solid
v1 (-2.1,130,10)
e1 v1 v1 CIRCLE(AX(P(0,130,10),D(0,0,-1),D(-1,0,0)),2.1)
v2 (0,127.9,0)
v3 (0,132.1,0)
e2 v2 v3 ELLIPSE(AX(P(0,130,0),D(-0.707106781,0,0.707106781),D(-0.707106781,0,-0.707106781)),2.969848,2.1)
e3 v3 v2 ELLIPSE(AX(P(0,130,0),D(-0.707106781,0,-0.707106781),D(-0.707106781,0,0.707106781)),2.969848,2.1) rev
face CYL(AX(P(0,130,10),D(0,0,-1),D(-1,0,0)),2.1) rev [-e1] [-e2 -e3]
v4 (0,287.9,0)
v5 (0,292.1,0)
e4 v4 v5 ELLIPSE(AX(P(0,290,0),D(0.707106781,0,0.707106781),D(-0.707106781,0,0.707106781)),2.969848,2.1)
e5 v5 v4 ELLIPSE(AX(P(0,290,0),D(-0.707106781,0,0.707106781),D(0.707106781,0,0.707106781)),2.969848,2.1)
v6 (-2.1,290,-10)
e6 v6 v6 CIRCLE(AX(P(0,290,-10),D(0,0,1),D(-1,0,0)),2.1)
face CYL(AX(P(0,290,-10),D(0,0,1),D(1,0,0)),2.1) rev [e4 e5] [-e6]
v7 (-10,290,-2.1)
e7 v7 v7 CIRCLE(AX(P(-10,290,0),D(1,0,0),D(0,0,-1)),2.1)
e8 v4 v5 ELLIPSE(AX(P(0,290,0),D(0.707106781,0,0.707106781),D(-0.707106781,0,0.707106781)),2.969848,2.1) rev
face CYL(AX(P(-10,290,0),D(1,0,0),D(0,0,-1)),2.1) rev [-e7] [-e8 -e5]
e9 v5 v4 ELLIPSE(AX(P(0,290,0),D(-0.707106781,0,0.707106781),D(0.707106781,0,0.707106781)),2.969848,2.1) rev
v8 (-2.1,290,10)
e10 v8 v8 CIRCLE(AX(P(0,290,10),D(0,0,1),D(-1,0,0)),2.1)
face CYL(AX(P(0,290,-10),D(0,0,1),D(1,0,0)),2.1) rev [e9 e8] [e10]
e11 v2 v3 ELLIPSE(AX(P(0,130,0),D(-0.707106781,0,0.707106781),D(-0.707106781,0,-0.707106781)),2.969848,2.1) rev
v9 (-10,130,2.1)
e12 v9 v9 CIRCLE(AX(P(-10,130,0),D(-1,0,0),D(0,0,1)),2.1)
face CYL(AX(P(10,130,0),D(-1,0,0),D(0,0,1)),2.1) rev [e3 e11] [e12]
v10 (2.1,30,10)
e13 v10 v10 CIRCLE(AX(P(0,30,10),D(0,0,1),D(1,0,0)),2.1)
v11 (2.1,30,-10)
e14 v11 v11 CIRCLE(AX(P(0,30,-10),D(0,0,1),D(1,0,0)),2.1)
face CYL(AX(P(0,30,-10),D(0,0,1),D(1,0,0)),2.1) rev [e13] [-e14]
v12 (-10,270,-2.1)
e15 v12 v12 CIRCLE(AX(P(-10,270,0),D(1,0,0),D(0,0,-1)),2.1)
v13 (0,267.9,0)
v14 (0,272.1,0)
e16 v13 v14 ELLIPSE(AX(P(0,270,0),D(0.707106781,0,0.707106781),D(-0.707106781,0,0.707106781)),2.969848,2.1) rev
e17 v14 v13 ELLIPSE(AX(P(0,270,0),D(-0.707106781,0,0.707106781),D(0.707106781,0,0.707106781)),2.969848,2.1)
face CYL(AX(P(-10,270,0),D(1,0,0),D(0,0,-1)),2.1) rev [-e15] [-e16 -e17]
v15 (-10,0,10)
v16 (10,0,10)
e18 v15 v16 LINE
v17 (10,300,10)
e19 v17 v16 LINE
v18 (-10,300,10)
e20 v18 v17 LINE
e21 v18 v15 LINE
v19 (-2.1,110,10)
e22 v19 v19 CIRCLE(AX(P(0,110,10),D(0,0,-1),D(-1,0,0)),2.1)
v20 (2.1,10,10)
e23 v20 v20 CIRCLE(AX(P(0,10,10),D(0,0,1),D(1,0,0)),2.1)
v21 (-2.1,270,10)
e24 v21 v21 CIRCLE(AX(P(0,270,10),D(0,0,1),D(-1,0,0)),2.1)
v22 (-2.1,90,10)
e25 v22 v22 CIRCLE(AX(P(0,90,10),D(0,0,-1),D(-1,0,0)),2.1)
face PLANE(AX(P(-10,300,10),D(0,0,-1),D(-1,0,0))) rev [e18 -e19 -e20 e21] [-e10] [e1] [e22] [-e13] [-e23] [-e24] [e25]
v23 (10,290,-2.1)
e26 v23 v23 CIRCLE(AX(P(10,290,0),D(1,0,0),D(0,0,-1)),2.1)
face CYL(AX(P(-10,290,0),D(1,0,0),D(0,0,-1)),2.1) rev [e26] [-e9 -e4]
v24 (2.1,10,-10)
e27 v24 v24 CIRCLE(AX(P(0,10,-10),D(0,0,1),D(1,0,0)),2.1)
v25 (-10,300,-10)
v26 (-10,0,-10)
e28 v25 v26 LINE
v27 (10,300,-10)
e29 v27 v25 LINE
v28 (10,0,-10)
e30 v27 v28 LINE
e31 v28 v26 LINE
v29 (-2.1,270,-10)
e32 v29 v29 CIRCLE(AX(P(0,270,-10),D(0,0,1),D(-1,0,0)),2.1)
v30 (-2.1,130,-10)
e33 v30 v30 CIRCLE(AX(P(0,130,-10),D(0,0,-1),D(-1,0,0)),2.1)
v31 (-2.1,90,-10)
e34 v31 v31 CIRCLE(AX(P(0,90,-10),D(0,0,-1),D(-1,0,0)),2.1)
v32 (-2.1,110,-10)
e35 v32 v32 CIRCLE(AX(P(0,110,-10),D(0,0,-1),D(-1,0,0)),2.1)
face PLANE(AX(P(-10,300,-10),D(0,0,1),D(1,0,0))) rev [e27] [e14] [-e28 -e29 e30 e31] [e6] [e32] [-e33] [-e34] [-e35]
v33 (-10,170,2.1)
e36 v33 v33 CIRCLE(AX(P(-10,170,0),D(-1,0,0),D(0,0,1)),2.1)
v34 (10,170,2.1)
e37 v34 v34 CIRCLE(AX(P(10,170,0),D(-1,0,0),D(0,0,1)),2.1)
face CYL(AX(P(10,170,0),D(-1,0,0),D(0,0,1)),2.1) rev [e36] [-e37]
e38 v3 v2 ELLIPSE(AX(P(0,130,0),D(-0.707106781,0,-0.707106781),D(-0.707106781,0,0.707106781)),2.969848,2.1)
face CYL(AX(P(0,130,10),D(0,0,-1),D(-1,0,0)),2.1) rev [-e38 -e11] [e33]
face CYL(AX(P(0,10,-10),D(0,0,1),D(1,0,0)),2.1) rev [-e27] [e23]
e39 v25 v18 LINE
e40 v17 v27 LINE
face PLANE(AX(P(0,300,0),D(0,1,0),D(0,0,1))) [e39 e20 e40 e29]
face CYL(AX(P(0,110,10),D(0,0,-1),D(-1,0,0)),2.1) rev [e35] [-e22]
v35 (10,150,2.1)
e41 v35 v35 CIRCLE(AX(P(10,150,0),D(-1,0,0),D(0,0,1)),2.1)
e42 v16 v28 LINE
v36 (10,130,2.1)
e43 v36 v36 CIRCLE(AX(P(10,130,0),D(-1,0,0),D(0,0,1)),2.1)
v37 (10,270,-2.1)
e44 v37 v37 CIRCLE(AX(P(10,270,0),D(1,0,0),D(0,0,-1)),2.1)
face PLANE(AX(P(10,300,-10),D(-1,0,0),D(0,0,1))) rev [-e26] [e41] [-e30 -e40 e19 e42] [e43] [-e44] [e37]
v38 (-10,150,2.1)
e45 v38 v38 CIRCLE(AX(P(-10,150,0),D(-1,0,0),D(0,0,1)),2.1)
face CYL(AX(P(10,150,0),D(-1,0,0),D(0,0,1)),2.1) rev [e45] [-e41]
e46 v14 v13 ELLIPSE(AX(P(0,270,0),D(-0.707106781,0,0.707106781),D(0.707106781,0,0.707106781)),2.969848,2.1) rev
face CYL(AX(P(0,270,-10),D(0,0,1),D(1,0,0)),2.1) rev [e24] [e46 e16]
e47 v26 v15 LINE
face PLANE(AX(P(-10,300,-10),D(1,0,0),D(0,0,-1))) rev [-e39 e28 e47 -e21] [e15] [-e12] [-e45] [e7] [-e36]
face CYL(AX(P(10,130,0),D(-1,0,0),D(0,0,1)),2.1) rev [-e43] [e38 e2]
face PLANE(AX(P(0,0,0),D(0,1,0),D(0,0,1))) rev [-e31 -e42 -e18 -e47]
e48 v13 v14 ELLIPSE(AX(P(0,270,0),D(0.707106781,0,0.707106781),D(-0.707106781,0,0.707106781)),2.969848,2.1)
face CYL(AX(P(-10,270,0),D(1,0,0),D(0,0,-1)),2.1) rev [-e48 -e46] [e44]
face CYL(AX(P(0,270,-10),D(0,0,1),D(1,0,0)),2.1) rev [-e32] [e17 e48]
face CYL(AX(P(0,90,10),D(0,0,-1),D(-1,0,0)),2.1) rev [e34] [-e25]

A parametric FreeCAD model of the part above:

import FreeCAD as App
import Part
import Sketcher

doc = App.newDocument("Part")
params = doc.addObject("Spreadsheet::Sheet", "Params")
for row, (alias, value) in enumerate([
    ("sketch1_width", "20 mm"),
    ("pad1_length", "300 mm"),
    ("sketch2_diameter", "4.2 mm"),
    ("sketch3_diameter", "4.2 mm"),
    ("sketch4_diameter", "4.2 mm"),
    ("sketch5_diameter", "4.2 mm"),
], start=1):
    params.set(f"A{row}", alias)
    params.set(f"B{row}", "=" + value)
    params.setAlias(f"B{row}", alias)

body = doc.addObject("PartDesign::Body", "Body")

sketch1 = body.newObject("Sketcher::SketchObject", "Sketch")
sketch1.AttachmentSupport = (doc.getObject("XZ_Plane"), [""])
sketch1.MapMode = "FlatFace"
sketch1.addGeometry(Part.LineSegment(App.Vector(-10, -10, 0), App.Vector(-10, 10, 0)), False)
sketch1.addGeometry(Part.LineSegment(App.Vector(-10, 10, 0), App.Vector(10, 10, 0)), False)
sketch1.addGeometry(Part.LineSegment(App.Vector(10, 10, 0), App.Vector(10, -10, 0)), False)
sketch1.addGeometry(Part.LineSegment(App.Vector(10, -10, 0), App.Vector(-10, -10, 0)), False)
sketch1.addConstraint(Sketcher.Constraint("Coincident", 0, 2, 1, 1))
sketch1.addConstraint(Sketcher.Constraint("Coincident", 1, 2, 2, 1))
sketch1.addConstraint(Sketcher.Constraint("Coincident", 2, 2, 3, 1))
sketch1.addConstraint(Sketcher.Constraint("Coincident", 3, 2, 0, 1))
sketch1.addConstraint(Sketcher.Constraint("Vertical", 0))
sketch1.addConstraint(Sketcher.Constraint("Horizontal", 1))
sketch1.addConstraint(Sketcher.Constraint("Vertical", 2))
sketch1.addConstraint(Sketcher.Constraint("Horizontal", 3))
sketch1.addConstraint(Sketcher.Constraint("Symmetric", 0, 2, 2, 2, -1, 1))
sketch1.addConstraint(Sketcher.Constraint("Equal", 3, 0))
sketch1.addConstraint(Sketcher.Constraint("DistanceX", 1, 1, 1, 2, 20.0))
sketch1.setExpression("Constraints[10]", "Params.sketch1_width")
pad1 = body.newObject("PartDesign::Pad", "Pad")
pad1.Profile = sketch1
pad1.setExpression("Length", "Params.pad1_length")
pad1.Reversed = True

sketch2 = body.newObject("Sketcher::SketchObject", "Sketch001")
sketch2.AttachmentSupport = (doc.getObject("XY_Plane"), [""])
sketch2.MapMode = "FlatFace"
sketch2.AttachmentOffset = App.Placement(App.Vector(0, 0, 10), App.Rotation())
sketch2.addGeometry(Part.Circle(App.Vector(0, 10, 0), App.Vector(0, 0, 1), 2.1), False)
sketch2.addGeometry(Part.Circle(App.Vector(0, 30, 0), App.Vector(0, 0, 1), 2.1), False)
sketch2.addGeometry(Part.Circle(App.Vector(0, 270, 0), App.Vector(0, 0, 1), 2.1), False)
sketch2.addGeometry(Part.Circle(App.Vector(0, 290, 0), App.Vector(0, 0, 1), 2.1), False)
sketch2.addConstraint(Sketcher.Constraint("Equal", 0, 1))
sketch2.addConstraint(Sketcher.Constraint("Equal", 1, 2))
sketch2.addConstraint(Sketcher.Constraint("Equal", 2, 3))
sketch2.addConstraint(Sketcher.Constraint("PointOnObject", 0, 3, -2))
sketch2.addConstraint(Sketcher.Constraint("PointOnObject", 1, 3, -2))
sketch2.addConstraint(Sketcher.Constraint("PointOnObject", 2, 3, -2))
sketch2.addConstraint(Sketcher.Constraint("PointOnObject", 3, 3, -2))
sketch2.addConstraint(Sketcher.Constraint("Diameter", 0, 4.2))
sketch2.addConstraint(Sketcher.Constraint("DistanceY", -1, 1, 0, 3, 10.0))
sketch2.addConstraint(Sketcher.Constraint("DistanceY", -1, 1, 1, 3, 30.0))
sketch2.addConstraint(Sketcher.Constraint("DistanceY", -1, 1, 2, 3, 270.0))
sketch2.addConstraint(Sketcher.Constraint("DistanceY", -1, 1, 3, 3, 290.0))
sketch2.setExpression("Constraints[7]", "Params.sketch2_diameter")
pocket1 = body.newObject("PartDesign::Pocket", "Pocket")
pocket1.Profile = sketch2
pocket1.Type = "ThroughAll"

sketch3 = body.newObject("Sketcher::SketchObject", "Sketch002")
sketch3.AttachmentSupport = (doc.getObject("YZ_Plane"), [""])
sketch3.MapMode = "FlatFace"
sketch3.AttachmentOffset = App.Placement(App.Vector(0, 0, -10), App.Rotation())
sketch3.addGeometry(Part.Circle(App.Vector(130, 0, 0), App.Vector(0, 0, 1), 2.1), False)
sketch3.addGeometry(Part.Circle(App.Vector(150, 0, 0), App.Vector(0, 0, 1), 2.1), False)
sketch3.addGeometry(Part.Circle(App.Vector(170, 0, 0), App.Vector(0, 0, 1), 2.1), False)
sketch3.addConstraint(Sketcher.Constraint("Equal", 0, 1))
sketch3.addConstraint(Sketcher.Constraint("Equal", 1, 2))
sketch3.addConstraint(Sketcher.Constraint("PointOnObject", 0, 3, -1))
sketch3.addConstraint(Sketcher.Constraint("PointOnObject", 1, 3, -1))
sketch3.addConstraint(Sketcher.Constraint("PointOnObject", 2, 3, -1))
sketch3.addConstraint(Sketcher.Constraint("Diameter", 0, 4.2))
sketch3.addConstraint(Sketcher.Constraint("DistanceX", -1, 1, 0, 3, 130.0))
sketch3.addConstraint(Sketcher.Constraint("DistanceX", -1, 1, 1, 3, 150.0))
sketch3.addConstraint(Sketcher.Constraint("DistanceX", -1, 1, 2, 3, 170.0))
sketch3.setExpression("Constraints[5]", "Params.sketch3_diameter")
pocket2 = body.newObject("PartDesign::Pocket", "Pocket001")
pocket2.Profile = sketch3
pocket2.Type = "ThroughAll"
pocket2.Reversed = True

sketch4 = body.newObject("Sketcher::SketchObject", "Sketch003")
sketch4.AttachmentSupport = (doc.getObject("YZ_Plane"), [""])
sketch4.MapMode = "FlatFace"
sketch4.AttachmentOffset = App.Placement(App.Vector(0, 0, 10), App.Rotation())
sketch4.addGeometry(Part.Circle(App.Vector(290, 0, 0), App.Vector(0, 0, 1), 2.1), False)
sketch4.addGeometry(Part.Circle(App.Vector(270, 0, 0), App.Vector(0, 0, 1), 2.1), False)
sketch4.addConstraint(Sketcher.Constraint("Equal", 0, 1))
sketch4.addConstraint(Sketcher.Constraint("PointOnObject", 0, 3, -1))
sketch4.addConstraint(Sketcher.Constraint("PointOnObject", 1, 3, -1))
sketch4.addConstraint(Sketcher.Constraint("Diameter", 0, 4.2))
sketch4.addConstraint(Sketcher.Constraint("DistanceX", -1, 1, 0, 3, 290.0))
sketch4.addConstraint(Sketcher.Constraint("DistanceX", -1, 1, 1, 3, 270.0))
sketch4.setExpression("Constraints[3]", "Params.sketch4_diameter")
pocket3 = body.newObject("PartDesign::Pocket", "Pocket002")
pocket3.Profile = sketch4
pocket3.Type = "ThroughAll"

sketch5 = body.newObject("Sketcher::SketchObject", "Sketch004")
sketch5.AttachmentSupport = (doc.getObject("XY_Plane"), [""])
sketch5.MapMode = "FlatFace"
sketch5.AttachmentOffset = App.Placement(App.Vector(0, 0, -10), App.Rotation())
sketch5.addGeometry(Part.Circle(App.Vector(0, 90, 0), App.Vector(0, 0, 1), 2.1), False)
sketch5.addGeometry(Part.Circle(App.Vector(0, 110, 0), App.Vector(0, 0, 1), 2.1), False)
sketch5.addGeometry(Part.Circle(App.Vector(0, 130, 0), App.Vector(0, 0, 1), 2.1), False)
sketch5.addConstraint(Sketcher.Constraint("Equal", 0, 1))
sketch5.addConstraint(Sketcher.Constraint("Equal", 1, 2))
sketch5.addConstraint(Sketcher.Constraint("PointOnObject", 0, 3, -2))
sketch5.addConstraint(Sketcher.Constraint("PointOnObject", 1, 3, -2))
sketch5.addConstraint(Sketcher.Constraint("PointOnObject", 2, 3, -2))
sketch5.addConstraint(Sketcher.Constraint("Diameter", 0, 4.2))
sketch5.addConstraint(Sketcher.Constraint("DistanceY", -1, 1, 0, 3, 90.0))
sketch5.addConstraint(Sketcher.Constraint("DistanceY", -1, 1, 1, 3, 110.0))
sketch5.addConstraint(Sketcher.Constraint("DistanceY", -1, 1, 2, 3, 130.0))
sketch5.setExpression("Constraints[5]", "Params.sketch5_diameter")
pocket4 = body.newObject("PartDesign::Pocket", "Pocket003")
pocket4.Profile = sketch5
pocket4.Type = "ThroughAll"
pocket4.Reversed = True

doc.recompute()
